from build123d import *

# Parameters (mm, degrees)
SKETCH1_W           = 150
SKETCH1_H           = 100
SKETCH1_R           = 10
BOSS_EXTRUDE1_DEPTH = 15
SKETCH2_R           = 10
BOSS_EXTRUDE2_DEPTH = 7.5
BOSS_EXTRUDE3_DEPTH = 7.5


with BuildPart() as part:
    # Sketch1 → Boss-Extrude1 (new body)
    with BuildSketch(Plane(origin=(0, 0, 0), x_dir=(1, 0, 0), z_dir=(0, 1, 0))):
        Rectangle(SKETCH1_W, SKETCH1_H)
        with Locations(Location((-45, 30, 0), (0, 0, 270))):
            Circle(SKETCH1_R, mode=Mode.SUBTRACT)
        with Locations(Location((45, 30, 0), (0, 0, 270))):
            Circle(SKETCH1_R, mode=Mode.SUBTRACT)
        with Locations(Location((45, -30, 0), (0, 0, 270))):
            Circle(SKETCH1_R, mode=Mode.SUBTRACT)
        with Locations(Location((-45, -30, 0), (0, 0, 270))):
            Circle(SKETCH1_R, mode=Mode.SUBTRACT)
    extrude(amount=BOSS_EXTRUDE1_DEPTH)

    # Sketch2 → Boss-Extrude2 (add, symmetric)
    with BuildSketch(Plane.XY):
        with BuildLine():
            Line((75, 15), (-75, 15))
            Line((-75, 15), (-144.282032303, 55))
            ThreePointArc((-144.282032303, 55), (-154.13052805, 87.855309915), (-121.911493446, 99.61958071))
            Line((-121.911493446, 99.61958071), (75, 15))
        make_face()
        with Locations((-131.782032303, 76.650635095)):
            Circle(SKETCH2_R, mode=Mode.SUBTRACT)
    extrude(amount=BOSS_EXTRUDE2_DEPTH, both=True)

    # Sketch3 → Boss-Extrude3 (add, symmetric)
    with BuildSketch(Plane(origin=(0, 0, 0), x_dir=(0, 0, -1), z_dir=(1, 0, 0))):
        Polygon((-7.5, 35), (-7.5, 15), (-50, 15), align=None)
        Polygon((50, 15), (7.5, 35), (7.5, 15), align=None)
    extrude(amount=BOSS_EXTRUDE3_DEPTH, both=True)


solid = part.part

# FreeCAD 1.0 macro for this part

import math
import FreeCAD as App
import Part
import Sketcher

V = App.Vector
Q = App.Units.Quantity

doc = App.newDocument("Part")
body = doc.addObject("PartDesign::Body", "Body")

# Sketch on XZ plane
sketch1 = body.newObject("Sketcher::SketchObject", "Sketch")
sketch1.AttachmentSupport = (doc.getObject("XZ_Plane"), [""])
sketch1.MapMode = "FlatFace"
sketch1.addGeometry(Part.LineSegment(V(-75, -50, 0), V(-75, 50, 0)), False)
sketch1.addGeometry(Part.LineSegment(V(-75, 50, 0), V(75, 50, 0)), False)
sketch1.addGeometry(Part.LineSegment(V(75, 50, 0), V(75, -50, 0)), False)
sketch1.addGeometry(Part.LineSegment(V(75, -50, 0), V(-75, -50, 0)), False)
sketch1.addGeometry(Part.Circle(V(-45, 30, 0), V(0, 0, 1), 10), False)
sketch1.addGeometry(Part.Circle(V(45, 30, 0), V(0, 0, 1), 10), False)
sketch1.addGeometry(Part.Circle(V(-45, -30, 0), V(0, 0, 1), 10), False)
sketch1.addGeometry(Part.Circle(V(45, -30, 0), V(0, 0, 1), 10), False)
sketch1.addConstraint(Sketcher.Constraint("Coincident", 0, 2, 1, 1))
sketch1.addConstraint(Sketcher.Constraint("Coincident", 1, 2, 2, 1))
sketch1.addConstraint(Sketcher.Constraint("Coincident", 2, 2, 3, 1))
sketch1.addConstraint(Sketcher.Constraint("Coincident", 3, 2, 0, 1))
sketch1.addConstraint(Sketcher.Constraint("Vertical", 0))
sketch1.addConstraint(Sketcher.Constraint("Horizontal", 1))
sketch1.addConstraint(Sketcher.Constraint("Vertical", 2))
sketch1.addConstraint(Sketcher.Constraint("Horizontal", 3))
sketch1.addConstraint(Sketcher.Constraint("Equal", 4, 5))
sketch1.addConstraint(Sketcher.Constraint("Equal", 5, 6))
sketch1.addConstraint(Sketcher.Constraint("Equal", 6, 7))
sketch1.addConstraint(Sketcher.Constraint("Symmetric", 5, 3, 6, 3, -1, 1))
sketch1.addConstraint(Sketcher.Constraint("Symmetric", 4, 3, 7, 3, -1, 1))
sketch1.addConstraint(Sketcher.Constraint("Symmetric", 0, 2, 2, 2, -1, 1))
sketch1.addConstraint(Sketcher.Constraint("Symmetric", 4, 3, 5, 3, -2))
sketch1.addConstraint(Sketcher.Constraint("Diameter", 4, Q("20 mm")))
sketch1.addConstraint(Sketcher.Constraint("DistanceX", 1, 1, 1, 2, Q("150 mm")))
sketch1.addConstraint(Sketcher.Constraint("DistanceY", 0, 1, 0, 2, Q("100 mm")))
sketch1.addConstraint(Sketcher.Constraint("DistanceX", 4, 3, -1, 1, Q("45 mm")))
sketch1.addConstraint(Sketcher.Constraint("DistanceY", -1, 1, 4, 3, Q("30 mm")))
pad1 = body.newObject("PartDesign::Pad", "Pad")
pad1.Profile = sketch1
pad1.Length = 15
pad1.Reversed = True

# Sketch on XY plane
sketch2 = body.newObject("Sketcher::SketchObject", "Sketch001")
sketch2.AttachmentSupport = (doc.getObject("XY_Plane"), [""])
sketch2.MapMode = "FlatFace"
sketch2.addGeometry(Part.LineSegment(V(-75, 15, 0), V(75, 15, 0)), False)
sketch2.addGeometry(Part.LineSegment(V(75, 15, 0), V(-122, 100, 0)), False)
sketch2.addGeometry(Part.ArcOfCircle(Part.Circle(V(-132, 77, 0), V(0, 0, 1), 25), math.radians(67), math.radians(240)), False)
sketch2.addGeometry(Part.LineSegment(V(-144, 55, 0), V(-75, 15, 0)), False)
sketch2.addGeometry(Part.Circle(V(-132, 77, 0), V(0, 0, 1), 10), False)
sketch2.addConstraint(Sketcher.Constraint("Coincident", 0, 2, 1, 1))
sketch2.addConstraint(Sketcher.Constraint("Tangent", 1, 2, 2, 1))
sketch2.addConstraint(Sketcher.Constraint("Tangent", 2, 2, 3, 1))
sketch2.addConstraint(Sketcher.Constraint("Coincident", 3, 2, 0, 1))
sketch2.addConstraint(Sketcher.Constraint("Horizontal", 0))
sketch2.addConstraint(Sketcher.Constraint("Coincident", 4, 3, 2, 3))
sketch2.addConstraint(Sketcher.Constraint("Diameter", 4, Q("20 mm")))
sketch2.addConstraint(Sketcher.Constraint("Radius", 2, Q("25 mm")))
sketch2.addConstraint(Sketcher.Constraint("DistanceX", 0, 1, 0, 2, Q("150 mm")))
sketch2.addConstraint(Sketcher.Constraint("Angle", 3, Q("-30 deg")))
sketch2.addConstraint(Sketcher.Constraint("Distance", 3, Q("80 mm")))
sketch2.addConstraint(Sketcher.Constraint("DistanceX", -1, 1, 0, 2, Q("75 mm")))
sketch2.addConstraint(Sketcher.Constraint("DistanceY", -1, 1, 0, 2, Q("15 mm")))
pad2 = body.newObject("PartDesign::Pad", "Pad001")
pad2.Profile = sketch2
pad2.Length = 15
pad2.Midplane = True

# Sketch on YZ plane
sketch3 = body.newObject("Sketcher::SketchObject", "Sketch002")
sketch3.AttachmentSupport = (doc.getObject("YZ_Plane"), [""])
sketch3.MapMode = "FlatFace"
sketch3.addGeometry(Part.LineSegment(V(15, 8, 0), V(35, 8, 0)), False)
sketch3.addGeometry(Part.LineSegment(V(35, 8, 0), V(15, 50, 0)), False)
sketch3.addGeometry(Part.LineSegment(V(15, 50, 0), V(15, 8, 0)), False)
sketch3.addGeometry(Part.LineSegment(V(15, -50, 0), V(35, -8, 0)), False)
sketch3.addGeometry(Part.LineSegment(V(35, -8, 0), V(15, -8, 0)), False)
sketch3.addGeometry(Part.LineSegment(V(15, -8, 0), V(15, -50, 0)), False)
sketch3.addConstraint(Sketcher.Constraint("Coincident", 0, 2, 1, 1))
sketch3.addConstraint(Sketcher.Constraint("Coincident", 1, 2, 2, 1))
sketch3.addConstraint(Sketcher.Constraint("Coincident", 2, 2, 0, 1))
sketch3.addConstraint(Sketcher.Constraint("Coincident", 3, 2, 4, 1))
sketch3.addConstraint(Sketcher.Constraint("Coincident", 4, 2, 5, 1))
sketch3.addConstraint(Sketcher.Constraint("Coincident", 5, 2, 3, 1))
sketch3.addConstraint(Sketcher.Constraint("Horizontal", 0))
sketch3.addConstraint(Sketcher.Constraint("Vertical", 2))
sketch3.addConstraint(Sketcher.Constraint("Horizontal", 4))
sketch3.addConstraint(Sketcher.Constraint("Vertical", 5))
sketch3.addConstraint(Sketcher.Constraint("Symmetric", 0, 2, 3, 2, -1))
sketch3.addConstraint(Sketcher.Constraint("Symmetric", 1, 2, 5, 2, -1))
sketch3.addConstraint(Sketcher.Constraint("DistanceX", 0, 1, 0, 2, Q("20 mm")))
sketch3.addConstraint(Sketcher.Constraint("DistanceY", 2, 2, 2, 1, Q("42.5 mm")))
sketch3.addConstraint(Sketcher.Constraint("DistanceX", -1, 1, 0, 2, Q("35 mm")))
sketch3.addConstraint(Sketcher.Constraint("DistanceY", -1, 1, 1, 2, Q("50 mm")))
pad3 = body.newObject("PartDesign::Pad", "Pad002")
pad3.Profile = sketch3
pad3.Length = 15
pad3.Midplane = True

doc.recompute()
